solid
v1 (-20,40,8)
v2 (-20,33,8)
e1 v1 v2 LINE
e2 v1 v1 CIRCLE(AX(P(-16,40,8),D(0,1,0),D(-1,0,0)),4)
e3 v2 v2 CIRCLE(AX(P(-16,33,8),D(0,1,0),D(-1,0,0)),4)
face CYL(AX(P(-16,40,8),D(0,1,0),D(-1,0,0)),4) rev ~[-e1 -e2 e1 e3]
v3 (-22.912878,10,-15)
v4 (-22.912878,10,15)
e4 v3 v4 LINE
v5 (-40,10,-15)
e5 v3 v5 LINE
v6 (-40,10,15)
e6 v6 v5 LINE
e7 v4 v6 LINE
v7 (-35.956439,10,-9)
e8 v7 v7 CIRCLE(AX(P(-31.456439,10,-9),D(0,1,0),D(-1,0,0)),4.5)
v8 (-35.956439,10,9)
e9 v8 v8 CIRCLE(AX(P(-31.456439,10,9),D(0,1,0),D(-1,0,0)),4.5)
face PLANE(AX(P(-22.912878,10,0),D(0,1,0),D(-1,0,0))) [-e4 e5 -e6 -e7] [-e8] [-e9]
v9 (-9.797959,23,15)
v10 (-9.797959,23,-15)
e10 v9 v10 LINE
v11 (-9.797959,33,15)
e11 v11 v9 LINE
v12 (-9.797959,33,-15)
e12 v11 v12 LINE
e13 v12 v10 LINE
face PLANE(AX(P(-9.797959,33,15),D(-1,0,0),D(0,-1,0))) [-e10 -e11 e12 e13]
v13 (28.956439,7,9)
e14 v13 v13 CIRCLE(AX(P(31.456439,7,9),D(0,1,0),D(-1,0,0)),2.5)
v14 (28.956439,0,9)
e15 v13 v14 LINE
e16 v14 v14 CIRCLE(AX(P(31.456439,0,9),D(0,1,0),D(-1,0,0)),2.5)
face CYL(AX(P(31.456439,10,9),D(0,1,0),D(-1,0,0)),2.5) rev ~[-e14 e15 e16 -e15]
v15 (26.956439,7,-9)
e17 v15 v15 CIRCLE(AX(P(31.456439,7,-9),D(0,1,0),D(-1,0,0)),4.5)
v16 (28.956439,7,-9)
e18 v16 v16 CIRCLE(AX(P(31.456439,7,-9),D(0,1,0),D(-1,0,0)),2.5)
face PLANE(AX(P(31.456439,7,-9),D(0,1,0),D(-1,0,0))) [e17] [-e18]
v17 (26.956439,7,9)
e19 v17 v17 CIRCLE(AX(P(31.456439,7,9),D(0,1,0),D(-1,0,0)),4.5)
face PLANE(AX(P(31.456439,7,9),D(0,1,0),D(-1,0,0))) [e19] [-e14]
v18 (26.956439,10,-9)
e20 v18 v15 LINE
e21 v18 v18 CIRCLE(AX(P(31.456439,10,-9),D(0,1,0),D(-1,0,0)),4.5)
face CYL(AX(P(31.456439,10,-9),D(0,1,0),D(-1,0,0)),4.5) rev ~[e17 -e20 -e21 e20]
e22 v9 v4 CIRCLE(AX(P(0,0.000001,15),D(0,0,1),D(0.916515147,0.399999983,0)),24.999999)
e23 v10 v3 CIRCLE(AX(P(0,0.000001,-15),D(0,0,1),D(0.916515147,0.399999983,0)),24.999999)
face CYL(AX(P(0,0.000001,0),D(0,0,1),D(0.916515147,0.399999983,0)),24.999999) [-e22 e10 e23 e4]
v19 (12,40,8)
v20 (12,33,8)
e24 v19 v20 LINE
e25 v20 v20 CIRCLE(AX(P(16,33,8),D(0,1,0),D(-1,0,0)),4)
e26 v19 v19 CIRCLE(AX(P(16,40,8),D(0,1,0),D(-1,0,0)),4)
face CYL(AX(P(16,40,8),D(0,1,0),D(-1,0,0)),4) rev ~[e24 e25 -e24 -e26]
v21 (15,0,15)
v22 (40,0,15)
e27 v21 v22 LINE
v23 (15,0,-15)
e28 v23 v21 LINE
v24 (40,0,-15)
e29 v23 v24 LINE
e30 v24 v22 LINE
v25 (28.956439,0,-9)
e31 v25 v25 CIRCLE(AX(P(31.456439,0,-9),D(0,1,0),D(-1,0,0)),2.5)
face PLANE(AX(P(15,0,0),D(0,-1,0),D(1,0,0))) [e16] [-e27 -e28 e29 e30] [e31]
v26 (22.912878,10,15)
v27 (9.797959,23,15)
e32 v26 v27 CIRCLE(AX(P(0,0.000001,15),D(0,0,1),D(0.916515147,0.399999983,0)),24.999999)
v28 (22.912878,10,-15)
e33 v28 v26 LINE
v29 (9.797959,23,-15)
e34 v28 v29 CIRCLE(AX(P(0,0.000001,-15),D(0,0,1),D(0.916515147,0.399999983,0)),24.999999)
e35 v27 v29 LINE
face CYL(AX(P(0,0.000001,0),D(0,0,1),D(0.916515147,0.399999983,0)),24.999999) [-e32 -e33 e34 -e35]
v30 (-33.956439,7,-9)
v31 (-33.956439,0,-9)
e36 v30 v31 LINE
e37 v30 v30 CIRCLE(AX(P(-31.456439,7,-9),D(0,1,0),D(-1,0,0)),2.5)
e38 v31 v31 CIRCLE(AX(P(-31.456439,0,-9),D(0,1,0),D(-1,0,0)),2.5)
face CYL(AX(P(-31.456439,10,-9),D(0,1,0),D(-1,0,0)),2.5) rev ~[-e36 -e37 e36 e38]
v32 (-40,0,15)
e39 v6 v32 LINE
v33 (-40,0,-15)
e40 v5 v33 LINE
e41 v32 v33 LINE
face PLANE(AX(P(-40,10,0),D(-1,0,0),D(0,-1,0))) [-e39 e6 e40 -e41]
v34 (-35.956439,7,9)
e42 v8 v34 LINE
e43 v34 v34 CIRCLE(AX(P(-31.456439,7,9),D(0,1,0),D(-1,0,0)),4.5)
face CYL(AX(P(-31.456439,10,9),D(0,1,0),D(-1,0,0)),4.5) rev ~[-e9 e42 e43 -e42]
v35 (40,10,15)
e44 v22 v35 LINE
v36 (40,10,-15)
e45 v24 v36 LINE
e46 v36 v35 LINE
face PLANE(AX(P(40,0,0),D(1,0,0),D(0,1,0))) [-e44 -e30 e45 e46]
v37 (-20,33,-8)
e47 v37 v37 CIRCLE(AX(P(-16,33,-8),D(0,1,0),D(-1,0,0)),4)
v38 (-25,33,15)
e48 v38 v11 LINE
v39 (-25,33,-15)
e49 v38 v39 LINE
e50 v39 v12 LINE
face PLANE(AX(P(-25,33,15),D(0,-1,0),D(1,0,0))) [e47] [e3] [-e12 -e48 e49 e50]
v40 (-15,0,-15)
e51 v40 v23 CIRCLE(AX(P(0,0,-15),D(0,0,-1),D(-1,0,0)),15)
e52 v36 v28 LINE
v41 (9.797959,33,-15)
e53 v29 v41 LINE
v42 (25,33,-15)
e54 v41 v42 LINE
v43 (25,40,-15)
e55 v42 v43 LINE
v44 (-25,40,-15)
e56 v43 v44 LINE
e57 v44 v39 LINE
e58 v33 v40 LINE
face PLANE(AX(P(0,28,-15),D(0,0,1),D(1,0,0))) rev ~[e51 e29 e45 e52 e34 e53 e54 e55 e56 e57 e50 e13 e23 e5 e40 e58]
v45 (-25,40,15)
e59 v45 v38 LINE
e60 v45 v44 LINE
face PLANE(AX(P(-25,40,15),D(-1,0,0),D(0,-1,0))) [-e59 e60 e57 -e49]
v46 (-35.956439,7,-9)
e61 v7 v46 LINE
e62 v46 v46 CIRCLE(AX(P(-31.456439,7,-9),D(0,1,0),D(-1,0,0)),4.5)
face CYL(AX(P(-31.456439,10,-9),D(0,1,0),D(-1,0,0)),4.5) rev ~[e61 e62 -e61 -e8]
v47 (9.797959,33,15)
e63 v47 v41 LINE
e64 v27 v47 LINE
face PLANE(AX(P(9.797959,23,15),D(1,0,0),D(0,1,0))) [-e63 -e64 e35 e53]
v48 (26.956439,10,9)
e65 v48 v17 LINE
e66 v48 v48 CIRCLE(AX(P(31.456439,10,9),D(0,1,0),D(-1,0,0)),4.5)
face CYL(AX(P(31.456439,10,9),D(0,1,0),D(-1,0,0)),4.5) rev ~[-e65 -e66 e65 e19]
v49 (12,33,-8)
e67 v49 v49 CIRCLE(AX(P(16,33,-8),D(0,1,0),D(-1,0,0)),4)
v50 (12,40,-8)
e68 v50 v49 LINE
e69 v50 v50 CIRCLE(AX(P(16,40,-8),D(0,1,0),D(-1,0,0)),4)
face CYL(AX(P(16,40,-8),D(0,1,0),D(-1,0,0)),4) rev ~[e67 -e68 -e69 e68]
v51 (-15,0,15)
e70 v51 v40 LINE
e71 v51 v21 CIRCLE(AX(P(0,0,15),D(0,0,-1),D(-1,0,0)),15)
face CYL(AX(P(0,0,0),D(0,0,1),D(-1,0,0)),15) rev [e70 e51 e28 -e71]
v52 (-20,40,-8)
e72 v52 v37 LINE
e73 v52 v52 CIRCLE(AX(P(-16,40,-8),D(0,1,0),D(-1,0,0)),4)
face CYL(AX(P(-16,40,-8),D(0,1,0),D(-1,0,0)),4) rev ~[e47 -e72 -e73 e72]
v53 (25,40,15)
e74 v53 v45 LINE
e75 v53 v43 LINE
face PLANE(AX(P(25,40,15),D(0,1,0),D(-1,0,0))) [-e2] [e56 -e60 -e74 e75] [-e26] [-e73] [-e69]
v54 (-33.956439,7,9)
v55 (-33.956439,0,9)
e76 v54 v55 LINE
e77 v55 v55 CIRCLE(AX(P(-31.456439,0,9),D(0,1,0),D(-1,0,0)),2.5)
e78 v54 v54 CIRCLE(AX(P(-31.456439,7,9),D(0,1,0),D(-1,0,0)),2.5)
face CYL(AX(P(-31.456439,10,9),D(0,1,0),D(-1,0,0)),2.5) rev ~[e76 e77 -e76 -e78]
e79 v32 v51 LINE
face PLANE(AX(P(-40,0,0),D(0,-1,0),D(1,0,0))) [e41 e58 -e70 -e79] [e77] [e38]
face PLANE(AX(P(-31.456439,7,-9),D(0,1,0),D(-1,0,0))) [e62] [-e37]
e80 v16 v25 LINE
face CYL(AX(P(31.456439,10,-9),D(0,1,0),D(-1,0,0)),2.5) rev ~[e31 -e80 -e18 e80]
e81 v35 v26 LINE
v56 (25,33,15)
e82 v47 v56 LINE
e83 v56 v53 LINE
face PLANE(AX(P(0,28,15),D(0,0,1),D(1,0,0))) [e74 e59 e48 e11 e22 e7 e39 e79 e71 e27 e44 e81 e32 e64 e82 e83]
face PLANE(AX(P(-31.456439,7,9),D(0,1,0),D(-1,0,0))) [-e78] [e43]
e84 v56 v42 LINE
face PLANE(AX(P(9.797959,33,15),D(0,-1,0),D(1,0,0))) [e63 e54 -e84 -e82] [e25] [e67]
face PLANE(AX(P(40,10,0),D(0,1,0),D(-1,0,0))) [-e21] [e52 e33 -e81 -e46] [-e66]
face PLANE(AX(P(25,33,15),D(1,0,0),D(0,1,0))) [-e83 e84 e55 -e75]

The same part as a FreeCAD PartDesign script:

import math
import FreeCAD as App
import Part
import Sketcher

V = App.Vector
Q = App.Units.Quantity

doc = App.newDocument("Part")
body = doc.addObject("PartDesign::Body", "Body")

# Sketch on XY plane
sketch1 = body.newObject("Sketcher::SketchObject", "Sketch")
sketch1.AttachmentSupport = (doc.getObject("XY_Plane"), [""])
sketch1.MapMode = "FlatFace"
sketch1.addGeometry(Part.ArcOfCircle(Part.Circle(V(0, 0, 0), V(0, 0, 1), 15), math.radians(0), math.radians(180)), False)
sketch1.addGeometry(Part.LineSegment(V(15, 0, 0), V(40, 0, 0)), False)
sketch1.addGeometry(Part.LineSegment(V(40, 0, 0), V(40, 10, 0)), False)
sketch1.addGeometry(Part.LineSegment(V(40, 10, 0), V(22.912878, 10, 0)), False)
sketch1.addGeometry(Part.ArcOfCircle(Part.Circle(V(0, 0.000001, 0), V(0, 0, 1), 24.999999), math.radians(23.578177), math.radians(156.421823)), False)
sketch1.addGeometry(Part.LineSegment(V(-22.912878, 10, 0), V(-40, 10, 0)), False)
sketch1.addGeometry(Part.LineSegment(V(-40, 10, 0), V(-40, 0, 0)), False)
sketch1.addGeometry(Part.LineSegment(V(-40, 0, 0), V(-15, 0, 0)), False)
sketch1.addConstraint(Sketcher.Constraint("Coincident", 0, 1, 1, 1))
sketch1.addConstraint(Sketcher.Constraint("Coincident", 1, 2, 2, 1))
sketch1.addConstraint(Sketcher.Constraint("Coincident", 2, 2, 3, 1))
sketch1.addConstraint(Sketcher.Constraint("Coincident", 3, 2, 4, 1))
sketch1.addConstraint(Sketcher.Constraint("Coincident", 4, 2, 5, 1))
sketch1.addConstraint(Sketcher.Constraint("Coincident", 5, 2, 6, 1))
sketch1.addConstraint(Sketcher.Constraint("Coincident", 6, 2, 7, 1))
sketch1.addConstraint(Sketcher.Constraint("Coincident", 7, 2, 0, 2))
sketch1.addConstraint(Sketcher.Constraint("Horizontal", 1))
sketch1.addConstraint(Sketcher.Constraint("Vertical", 2))
sketch1.addConstraint(Sketcher.Constraint("Horizontal", 3))
sketch1.addConstraint(Sketcher.Constraint("Horizontal", 5))
sketch1.addConstraint(Sketcher.Constraint("Vertical", 6))
sketch1.addConstraint(Sketcher.Constraint("Horizontal", 7))
sketch1.addConstraint(Sketcher.Constraint("Coincident", 0, 3, -1, 1))
sketch1.addConstraint(Sketcher.Constraint("Coincident", 4, 3, -1, 1))
sketch1.addConstraint(Sketcher.Constraint("Symmetric", 1, 2, 6, 2, -1, 1))
sketch1.addConstraint(Sketcher.Constraint("PointOnObject", 0, 1, -1))
sketch1.addConstraint(Sketcher.Constraint("Horizontal", 3, 2, 4, 2))
sketch1.addConstraint(Sketcher.Constraint("Radius", 0, Q("15 mm")))
sketch1.addConstraint(Sketcher.Constraint("Radius", 4, Q("24.999999 mm")))
sketch1.addConstraint(Sketcher.Constraint("DistanceX", 1, 1, 1, 2, Q("25 mm")))
sketch1.addConstraint(Sketcher.Constraint("DistanceY", 2, 1, 2, 2, Q("10 mm")))
pad1 = body.newObject("PartDesign::Pad", "Pad")
pad1.Profile = sketch1
pad1.Length = 30
pad1.Midplane = True

# Sketch on XZ plane
sketch2 = body.newObject("Sketcher::SketchObject", "Sketch001")
sketch2.AttachmentSupport = (doc.getObject("XZ_Plane"), [""])
sketch2.MapMode = "FlatFace"
sketch2.AttachmentOffset = App.Placement(V(0, 0, -10), App.Rotation())
sketch2.addGeometry(Part.Circle(V(31.456439, 9, 0), V(0, 0, 1), 2.5), False)
sketch2.addGeometry(Part.Circle(V(31.456439, -9, 0), V(0, 0, 1), 2.5), False)
sketch2.addGeometry(Part.Circle(V(-31.456439, -9, 0), V(0, 0, 1), 2.5), False)
sketch2.addGeometry(Part.Circle(V(-31.456439, 9, 0), V(0, 0, 1), 2.5), False)
sketch2.addConstraint(Sketcher.Constraint("Equal", 0, 1))
sketch2.addConstraint(Sketcher.Constraint("Equal", 1, 2))
sketch2.addConstraint(Sketcher.Constraint("Equal", 2, 3))
sketch2.addConstraint(Sketcher.Constraint("Symmetric", 0, 3, 2, 3, -1, 1))
sketch2.addConstraint(Sketcher.Constraint("Symmetric", 1, 3, 3, 3, -1, 1))
sketch2.addConstraint(Sketcher.Constraint("Symmetric", 1, 3, 2, 3, -2))
sketch2.addConstraint(Sketcher.Constraint("Diameter", 0, Q("5 mm")))
sketch2.addConstraint(Sketcher.Constraint("DistanceY", -1, 1, 0, 3, Q("9 mm")))
sketch2.addConstraint(Sketcher.Constraint("DistanceX", -1, 1, 0, 3, Q("31.456439 mm")))
pocket1 = body.newObject("PartDesign::Pocket", "Pocket")
pocket1.Profile = sketch2
pocket1.Length = 15
pocket1.Reversed = True

# Sketch on XZ plane
sketch3 = body.newObject("Sketcher::SketchObject", "Sketch002")
sketch3.AttachmentSupport = (doc.getObject("XZ_Plane"), [""])
sketch3.MapMode = "FlatFace"
sketch3.AttachmentOffset = App.Placement(V(0, 0, -10), App.Rotation())
sketch3.addGeometry(Part.Circle(V(-31.456439, 9, 0), V(0, 0, 1), 4.5), False)
sketch3.addGeometry(Part.Circle(V(-31.456439, 9, 0), V(0, 0, 1), 2.5), False)
sketch3.addGeometry(Part.Circle(V(-31.456439, -9, 0), V(0, 0, 1), 4.5), False)
sketch3.addGeometry(Part.Circle(V(31.456439, -9, 0), V(0, 0, 1), 4.5), False)
sketch3.addGeometry(Part.Circle(V(31.456439, 9, 0), V(0, 0, 1), 4.5), False)
sketch3.addConstraint(Sketcher.Constraint("Coincident", 1, 3, 0, 3))
sketch3.addConstraint(Sketcher.Constraint("Equal", 0, 2))
sketch3.addConstraint(Sketcher.Constraint("Equal", 2, 3))
sketch3.addConstraint(Sketcher.Constraint("Equal", 3, 4))
sketch3.addConstraint(Sketcher.Constraint("Symmetric", 0, 3, 3, 3, -1, 1))
sketch3.addConstraint(Sketcher.Constraint("Symmetric", 2, 3, 4, 3, -1, 1))
sketch3.addConstraint(Sketcher.Constraint("Symmetric", 2, 3, 3, 3, -2))
sketch3.addConstraint(Sketcher.Constraint("Diameter", 0, Q("9 mm")))
sketch3.addConstraint(Sketcher.Constraint("Diameter", 1, Q("5 mm")))
sketch3.addConstraint(Sketcher.Constraint("DistanceY", -1, 1, 0, 3, Q("9 mm")))
sketch3.addConstraint(Sketcher.Constraint("DistanceX", 0, 3, -1, 1, Q("31.456439 mm")))
pocket2 = body.newObject("PartDesign::Pocket", "Pocket001")
pocket2.Profile = sketch3
pocket2.Length = 3
pocket2.Reversed = True

# Sketch on XY plane
sketch4 = body.newObject("Sketcher::SketchObject", "Sketch003")
sketch4.AttachmentSupport = (doc.getObject("XY_Plane"), [""])
sketch4.MapMode = "FlatFace"
sketch4.AttachmentOffset = App.Placement(V(0, 0, 15), App.Rotation())
sketch4.addGeometry(Part.LineSegment(V(-9.797959, 33, 0), V(-9.797959, 23, 0)), False)
sketch4.addGeometry(Part.LineSegment(V(-9.797959, 23, 0), V(9.797959, 23, 0)), False)
sketch4.addGeometry(Part.LineSegment(V(9.797959, 23, 0), V(9.797959, 33, 0)), False)
sketch4.addGeometry(Part.LineSegment(V(9.797959, 33, 0), V(25, 33, 0)), False)
sketch4.addGeometry(Part.LineSegment(V(25, 33, 0), V(25, 40, 0)), False)
sketch4.addGeometry(Part.LineSegment(V(25, 40, 0), V(-25, 40, 0)), False)
sketch4.addGeometry(Part.LineSegment(V(-25, 40, 0), V(-25, 33, 0)), False)
sketch4.addGeometry(Part.LineSegment(V(-25, 33, 0), V(-9.797959, 33, 0)), False)
sketch4.addConstraint(Sketcher.Constraint("Coincident", 0, 2, 1, 1))
sketch4.addConstraint(Sketcher.Constraint("Coincident", 1, 2, 2, 1))
sketch4.addConstraint(Sketcher.Constraint("Coincident", 2, 2, 3, 1))
sketch4.addConstraint(Sketcher.Constraint("Coincident", 3, 2, 4, 1))
sketch4.addConstraint(Sketcher.Constraint("Coincident", 4, 2, 5, 1))
sketch4.addConstraint(Sketcher.Constraint("Coincident", 5, 2, 6, 1))
sketch4.addConstraint(Sketcher.Constraint("Coincident", 6, 2, 7, 1))
sketch4.addConstraint(Sketcher.Constraint("Coincident", 7, 2, 0, 1))
sketch4.addConstraint(Sketcher.Constraint("Vertical", 0))
sketch4.addConstraint(Sketcher.Constraint("Horizontal", 1))
sketch4.addConstraint(Sketcher.Constraint("Vertical", 2))
sketch4.addConstraint(Sketcher.Constraint("Horizontal", 3))
sketch4.addConstraint(Sketcher.Constraint("Vertical", 4))
sketch4.addConstraint(Sketcher.Constraint("Horizontal", 5))
sketch4.addConstraint(Sketcher.Constraint("Vertical", 6))
sketch4.addConstraint(Sketcher.Constraint("Horizontal", 7))
sketch4.addConstraint(Sketcher.Constraint("Symmetric", 3, 2, 6, 2, -2))
sketch4.addConstraint(Sketcher.Constraint("Equal", 3, 7))
sketch4.addConstraint(Sketcher.Constraint("DistanceX", 5, 2, 5, 1, Q("50 mm")))
sketch4.addConstraint(Sketcher.Constraint("DistanceY", 0, 2, 0, 1, Q("10 mm")))
sketch4.addConstraint(Sketcher.Constraint("DistanceY", 4, 1, 4, 2, Q("7 mm")))
sketch4.addConstraint(Sketcher.Constraint("DistanceY", -1, 1, 0, 2, Q("23 mm")))
sketch4.addConstraint(Sketcher.Constraint("DistanceX", 1, 1, 1, 2, Q("19.595918 mm")))
pad2 = body.newObject("PartDesign::Pad", "Pad001")
pad2.Profile = sketch4
pad2.Length = 30
pad2.Reversed = True

# Sketch on XZ plane
sketch5 = body.newObject("Sketcher::SketchObject", "Sketch004")
sketch5.AttachmentSupport = (doc.getObject("XZ_Plane"), [""])
sketch5.MapMode = "FlatFace"
sketch5.AttachmentOffset = App.Placement(V(0, 0, -40), App.Rotation())
sketch5.addGeometry(Part.Circle(V(-16, 8, 0), V(0, 0, 1), 4), False)
sketch5.addGeometry(Part.Circle(V(-16, -8, 0), V(0, 0, 1), 4), False)
sketch5.addGeometry(Part.Circle(V(16, -8, 0), V(0, 0, 1), 4), False)
sketch5.addGeometry(Part.Circle(V(16, 8, 0), V(0, 0, 1), 4), False)
sketch5.addConstraint(Sketcher.Constraint("Equal", 0, 1))
sketch5.addConstraint(Sketcher.Constraint("Equal", 1, 2))
sketch5.addConstraint(Sketcher.Constraint("Equal", 2, 3))
sketch5.addConstraint(Sketcher.Constraint("Symmetric", 0, 3, 2, 3, -1, 1))
sketch5.addConstraint(Sketcher.Constraint("Symmetric", 1, 3, 3, 3, -1, 1))
sketch5.addConstraint(Sketcher.Constraint("Symmetric", 1, 3, 2, 3, -2))
sketch5.addConstraint(Sketcher.Constraint("Diameter", 0, Q("8 mm")))
sketch5.addConstraint(Sketcher.Constraint("DistanceX", 0, 3, -1, 1, Q("16 mm")))
sketch5.addConstraint(Sketcher.Constraint("DistanceY", -1, 1, 0, 3, Q("8 mm")))
pocket3 = body.newObject("PartDesign::Pocket", "Pocket002")
pocket3.Profile = sketch5
pocket3.Length = 8
pocket3.Reversed = True

doc.recompute()
